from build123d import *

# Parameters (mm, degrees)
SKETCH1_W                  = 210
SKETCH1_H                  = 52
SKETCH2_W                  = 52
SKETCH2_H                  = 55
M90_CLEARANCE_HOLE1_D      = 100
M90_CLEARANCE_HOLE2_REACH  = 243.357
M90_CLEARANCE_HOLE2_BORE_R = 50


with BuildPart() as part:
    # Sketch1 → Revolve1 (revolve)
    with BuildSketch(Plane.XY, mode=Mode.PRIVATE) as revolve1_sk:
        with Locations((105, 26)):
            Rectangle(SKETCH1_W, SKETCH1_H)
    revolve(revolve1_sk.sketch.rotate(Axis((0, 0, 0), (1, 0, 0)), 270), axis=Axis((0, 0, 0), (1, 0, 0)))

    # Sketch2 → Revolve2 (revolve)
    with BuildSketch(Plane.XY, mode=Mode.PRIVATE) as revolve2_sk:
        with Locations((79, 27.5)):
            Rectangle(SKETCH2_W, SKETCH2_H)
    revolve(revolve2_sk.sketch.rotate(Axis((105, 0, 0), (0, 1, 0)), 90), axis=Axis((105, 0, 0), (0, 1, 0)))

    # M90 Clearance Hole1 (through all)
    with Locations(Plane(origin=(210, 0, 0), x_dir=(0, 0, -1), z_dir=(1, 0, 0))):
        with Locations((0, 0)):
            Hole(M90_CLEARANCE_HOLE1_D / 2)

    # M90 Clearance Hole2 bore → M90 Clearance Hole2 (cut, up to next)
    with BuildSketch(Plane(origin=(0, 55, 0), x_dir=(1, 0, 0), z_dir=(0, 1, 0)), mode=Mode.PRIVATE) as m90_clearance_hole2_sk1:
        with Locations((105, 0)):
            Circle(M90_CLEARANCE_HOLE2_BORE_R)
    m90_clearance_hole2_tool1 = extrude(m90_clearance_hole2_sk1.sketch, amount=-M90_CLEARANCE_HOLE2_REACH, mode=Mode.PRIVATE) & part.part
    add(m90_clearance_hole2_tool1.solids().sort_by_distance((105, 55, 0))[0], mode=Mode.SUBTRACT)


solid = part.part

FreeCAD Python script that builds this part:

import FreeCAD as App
import Part
import Sketcher
from FreeCAD import Vector
Q = App.Units.Quantity

doc = App.newDocument("Part")
body = doc.addObject("PartDesign::Body", "Body")

# Sketch on XY plane
sketch1 = body.newObject("Sketcher::SketchObject", "Sketch")
sketch1.AttachmentSupport = (doc.getObject("XY_Plane"), [""])
sketch1.MapMode = "FlatFace"
sketch1.addGeometry([
    Part.LineSegment(Vector(0, 52, 0), Vector(0, 0, 0)),
    Part.LineSegment(Vector(0, 0, 0), Vector(210, 0, 0)),
    Part.LineSegment(Vector(210, 0, 0), Vector(210, 52, 0)),
    Part.LineSegment(Vector(210, 52, 0), Vector(0, 52, 0)),
], False)
sketch1.addConstraint([
    Sketcher.Constraint("Coincident", 0, 2, 1, 1),
    Sketcher.Constraint("Coincident", 1, 2, 2, 1),
    Sketcher.Constraint("Coincident", 2, 2, 3, 1),
    Sketcher.Constraint("Coincident", 3, 2, 0, 1),
    Sketcher.Constraint("Vertical", 0),
    Sketcher.Constraint("Horizontal", 1),
    Sketcher.Constraint("Vertical", 2),
    Sketcher.Constraint("Horizontal", 3),
    Sketcher.Constraint("Coincident", 0, 2, -1, 1),
    Sketcher.Constraint("DistanceX", 1, 1, 1, 2, Q("210 mm")),
    Sketcher.Constraint("DistanceY", 0, 2, 0, 1, Q("52 mm")),
])
revolution = body.newObject("PartDesign::Revolution", "Revolution")
revolution.Profile = sketch1
revolution.ReferenceAxis = (sketch1, ["H_Axis"])
revolution.Angle = 360

# Sketch on XY plane
sketch2 = body.newObject("Sketcher::SketchObject", "Sketch001")
sketch2.AttachmentSupport = (doc.getObject("XY_Plane"), [""])
sketch2.MapMode = "FlatFace"
sketch2.addGeometry([
    Part.LineSegment(Vector(53, 55, 0), Vector(53, 0, 0)),
    Part.LineSegment(Vector(53, 0, 0), Vector(105, 0, 0)),
    Part.LineSegment(Vector(105, 0, 0), Vector(105, 55, 0)),
    Part.LineSegment(Vector(105, 55, 0), Vector(53, 55, 0)),
], False)
sketch2.addGeometry(Part.LineSegment(Vector(105, 0, 0), Vector(105, 55, 0)), True)  # axis
sketch2.addConstraint([
    Sketcher.Constraint("Coincident", 0, 2, 1, 1),
    Sketcher.Constraint("Coincident", 1, 2, 2, 1),
    Sketcher.Constraint("Coincident", 2, 2, 3, 1),
    Sketcher.Constraint("Coincident", 3, 2, 0, 1),
    Sketcher.Constraint("Vertical", 0),
    Sketcher.Constraint("Horizontal", 1),
    Sketcher.Constraint("Vertical", 2),
    Sketcher.Constraint("Horizontal", 3),
    Sketcher.Constraint("Vertical", 4),
    Sketcher.Constraint("Coincident", 4, 1, 1, 2),
    Sketcher.Constraint("PointOnObject", 0, 2, -1),
    Sketcher.Constraint("Horizontal", 3, 2, 4, 2),
    Sketcher.Constraint("DistanceX", 1, 1, 1, 2, Q("52 mm")),
    Sketcher.Constraint("DistanceY", 0, 2, 0, 1, Q("55 mm")),
    Sketcher.Constraint("DistanceX", -1, 1, 0, 2, Q("53 mm")),
])
revolution2 = body.newObject("PartDesign::Revolution", "Revolution001")
revolution2.Profile = sketch2
revolution2.ReferenceAxis = (sketch2, ["Axis0"])
revolution2.Angle = 360

# Sketch on YZ plane
sketch3 = body.newObject("Sketcher::SketchObject", "Sketch002")
sketch3.AttachmentSupport = (doc.getObject("YZ_Plane"), [""])
sketch3.MapMode = "FlatFace"
sketch3.AttachmentOffset = App.Placement(Vector(0, 0, 210), App.Rotation())
sketch3.addGeometry(Part.Circle(Vector(0, 0, 0), Vector(0, 0, 1), 50), False)
sketch3.addConstraint([
    Sketcher.Constraint("Coincident", 0, 3, -1, 1),
    Sketcher.Constraint("Diameter", 0, Q("100 mm")),
])
doc.recompute()
hole = body.newObject("PartDesign::Hole", "Hole")
hole.Profile = sketch3
hole.ThreadType = "None"
hole.Diameter = 100
hole.DepthType = "ThroughAll"

# Sketch on XZ plane
sketch4 = body.newObject("Sketcher::SketchObject", "Sketch003")
sketch4.AttachmentSupport = (doc.getObject("XZ_Plane"), [""])
sketch4.MapMode = "FlatFace"
sketch4.AttachmentOffset = App.Placement(Vector(0, 0, -55), App.Rotation())
sketch4.addGeometry(Part.Circle(Vector(105, 0, 0), Vector(0, 0, 1), 50), False)
sketch4.addConstraint([
    Sketcher.Constraint("PointOnObject", 0, 3, -1),
    Sketcher.Constraint("Diameter", 0, Q("100 mm")),
    Sketcher.Constraint("DistanceX", -1, 1, 0, 3, Q("105 mm")),
])
pocket1 = body.newObject("PartDesign::Pocket", "Pocket")
pocket1.Profile = sketch4
pocket1.Type = "UpToFirst"
pocket1.Reversed = True

doc.recompute()
